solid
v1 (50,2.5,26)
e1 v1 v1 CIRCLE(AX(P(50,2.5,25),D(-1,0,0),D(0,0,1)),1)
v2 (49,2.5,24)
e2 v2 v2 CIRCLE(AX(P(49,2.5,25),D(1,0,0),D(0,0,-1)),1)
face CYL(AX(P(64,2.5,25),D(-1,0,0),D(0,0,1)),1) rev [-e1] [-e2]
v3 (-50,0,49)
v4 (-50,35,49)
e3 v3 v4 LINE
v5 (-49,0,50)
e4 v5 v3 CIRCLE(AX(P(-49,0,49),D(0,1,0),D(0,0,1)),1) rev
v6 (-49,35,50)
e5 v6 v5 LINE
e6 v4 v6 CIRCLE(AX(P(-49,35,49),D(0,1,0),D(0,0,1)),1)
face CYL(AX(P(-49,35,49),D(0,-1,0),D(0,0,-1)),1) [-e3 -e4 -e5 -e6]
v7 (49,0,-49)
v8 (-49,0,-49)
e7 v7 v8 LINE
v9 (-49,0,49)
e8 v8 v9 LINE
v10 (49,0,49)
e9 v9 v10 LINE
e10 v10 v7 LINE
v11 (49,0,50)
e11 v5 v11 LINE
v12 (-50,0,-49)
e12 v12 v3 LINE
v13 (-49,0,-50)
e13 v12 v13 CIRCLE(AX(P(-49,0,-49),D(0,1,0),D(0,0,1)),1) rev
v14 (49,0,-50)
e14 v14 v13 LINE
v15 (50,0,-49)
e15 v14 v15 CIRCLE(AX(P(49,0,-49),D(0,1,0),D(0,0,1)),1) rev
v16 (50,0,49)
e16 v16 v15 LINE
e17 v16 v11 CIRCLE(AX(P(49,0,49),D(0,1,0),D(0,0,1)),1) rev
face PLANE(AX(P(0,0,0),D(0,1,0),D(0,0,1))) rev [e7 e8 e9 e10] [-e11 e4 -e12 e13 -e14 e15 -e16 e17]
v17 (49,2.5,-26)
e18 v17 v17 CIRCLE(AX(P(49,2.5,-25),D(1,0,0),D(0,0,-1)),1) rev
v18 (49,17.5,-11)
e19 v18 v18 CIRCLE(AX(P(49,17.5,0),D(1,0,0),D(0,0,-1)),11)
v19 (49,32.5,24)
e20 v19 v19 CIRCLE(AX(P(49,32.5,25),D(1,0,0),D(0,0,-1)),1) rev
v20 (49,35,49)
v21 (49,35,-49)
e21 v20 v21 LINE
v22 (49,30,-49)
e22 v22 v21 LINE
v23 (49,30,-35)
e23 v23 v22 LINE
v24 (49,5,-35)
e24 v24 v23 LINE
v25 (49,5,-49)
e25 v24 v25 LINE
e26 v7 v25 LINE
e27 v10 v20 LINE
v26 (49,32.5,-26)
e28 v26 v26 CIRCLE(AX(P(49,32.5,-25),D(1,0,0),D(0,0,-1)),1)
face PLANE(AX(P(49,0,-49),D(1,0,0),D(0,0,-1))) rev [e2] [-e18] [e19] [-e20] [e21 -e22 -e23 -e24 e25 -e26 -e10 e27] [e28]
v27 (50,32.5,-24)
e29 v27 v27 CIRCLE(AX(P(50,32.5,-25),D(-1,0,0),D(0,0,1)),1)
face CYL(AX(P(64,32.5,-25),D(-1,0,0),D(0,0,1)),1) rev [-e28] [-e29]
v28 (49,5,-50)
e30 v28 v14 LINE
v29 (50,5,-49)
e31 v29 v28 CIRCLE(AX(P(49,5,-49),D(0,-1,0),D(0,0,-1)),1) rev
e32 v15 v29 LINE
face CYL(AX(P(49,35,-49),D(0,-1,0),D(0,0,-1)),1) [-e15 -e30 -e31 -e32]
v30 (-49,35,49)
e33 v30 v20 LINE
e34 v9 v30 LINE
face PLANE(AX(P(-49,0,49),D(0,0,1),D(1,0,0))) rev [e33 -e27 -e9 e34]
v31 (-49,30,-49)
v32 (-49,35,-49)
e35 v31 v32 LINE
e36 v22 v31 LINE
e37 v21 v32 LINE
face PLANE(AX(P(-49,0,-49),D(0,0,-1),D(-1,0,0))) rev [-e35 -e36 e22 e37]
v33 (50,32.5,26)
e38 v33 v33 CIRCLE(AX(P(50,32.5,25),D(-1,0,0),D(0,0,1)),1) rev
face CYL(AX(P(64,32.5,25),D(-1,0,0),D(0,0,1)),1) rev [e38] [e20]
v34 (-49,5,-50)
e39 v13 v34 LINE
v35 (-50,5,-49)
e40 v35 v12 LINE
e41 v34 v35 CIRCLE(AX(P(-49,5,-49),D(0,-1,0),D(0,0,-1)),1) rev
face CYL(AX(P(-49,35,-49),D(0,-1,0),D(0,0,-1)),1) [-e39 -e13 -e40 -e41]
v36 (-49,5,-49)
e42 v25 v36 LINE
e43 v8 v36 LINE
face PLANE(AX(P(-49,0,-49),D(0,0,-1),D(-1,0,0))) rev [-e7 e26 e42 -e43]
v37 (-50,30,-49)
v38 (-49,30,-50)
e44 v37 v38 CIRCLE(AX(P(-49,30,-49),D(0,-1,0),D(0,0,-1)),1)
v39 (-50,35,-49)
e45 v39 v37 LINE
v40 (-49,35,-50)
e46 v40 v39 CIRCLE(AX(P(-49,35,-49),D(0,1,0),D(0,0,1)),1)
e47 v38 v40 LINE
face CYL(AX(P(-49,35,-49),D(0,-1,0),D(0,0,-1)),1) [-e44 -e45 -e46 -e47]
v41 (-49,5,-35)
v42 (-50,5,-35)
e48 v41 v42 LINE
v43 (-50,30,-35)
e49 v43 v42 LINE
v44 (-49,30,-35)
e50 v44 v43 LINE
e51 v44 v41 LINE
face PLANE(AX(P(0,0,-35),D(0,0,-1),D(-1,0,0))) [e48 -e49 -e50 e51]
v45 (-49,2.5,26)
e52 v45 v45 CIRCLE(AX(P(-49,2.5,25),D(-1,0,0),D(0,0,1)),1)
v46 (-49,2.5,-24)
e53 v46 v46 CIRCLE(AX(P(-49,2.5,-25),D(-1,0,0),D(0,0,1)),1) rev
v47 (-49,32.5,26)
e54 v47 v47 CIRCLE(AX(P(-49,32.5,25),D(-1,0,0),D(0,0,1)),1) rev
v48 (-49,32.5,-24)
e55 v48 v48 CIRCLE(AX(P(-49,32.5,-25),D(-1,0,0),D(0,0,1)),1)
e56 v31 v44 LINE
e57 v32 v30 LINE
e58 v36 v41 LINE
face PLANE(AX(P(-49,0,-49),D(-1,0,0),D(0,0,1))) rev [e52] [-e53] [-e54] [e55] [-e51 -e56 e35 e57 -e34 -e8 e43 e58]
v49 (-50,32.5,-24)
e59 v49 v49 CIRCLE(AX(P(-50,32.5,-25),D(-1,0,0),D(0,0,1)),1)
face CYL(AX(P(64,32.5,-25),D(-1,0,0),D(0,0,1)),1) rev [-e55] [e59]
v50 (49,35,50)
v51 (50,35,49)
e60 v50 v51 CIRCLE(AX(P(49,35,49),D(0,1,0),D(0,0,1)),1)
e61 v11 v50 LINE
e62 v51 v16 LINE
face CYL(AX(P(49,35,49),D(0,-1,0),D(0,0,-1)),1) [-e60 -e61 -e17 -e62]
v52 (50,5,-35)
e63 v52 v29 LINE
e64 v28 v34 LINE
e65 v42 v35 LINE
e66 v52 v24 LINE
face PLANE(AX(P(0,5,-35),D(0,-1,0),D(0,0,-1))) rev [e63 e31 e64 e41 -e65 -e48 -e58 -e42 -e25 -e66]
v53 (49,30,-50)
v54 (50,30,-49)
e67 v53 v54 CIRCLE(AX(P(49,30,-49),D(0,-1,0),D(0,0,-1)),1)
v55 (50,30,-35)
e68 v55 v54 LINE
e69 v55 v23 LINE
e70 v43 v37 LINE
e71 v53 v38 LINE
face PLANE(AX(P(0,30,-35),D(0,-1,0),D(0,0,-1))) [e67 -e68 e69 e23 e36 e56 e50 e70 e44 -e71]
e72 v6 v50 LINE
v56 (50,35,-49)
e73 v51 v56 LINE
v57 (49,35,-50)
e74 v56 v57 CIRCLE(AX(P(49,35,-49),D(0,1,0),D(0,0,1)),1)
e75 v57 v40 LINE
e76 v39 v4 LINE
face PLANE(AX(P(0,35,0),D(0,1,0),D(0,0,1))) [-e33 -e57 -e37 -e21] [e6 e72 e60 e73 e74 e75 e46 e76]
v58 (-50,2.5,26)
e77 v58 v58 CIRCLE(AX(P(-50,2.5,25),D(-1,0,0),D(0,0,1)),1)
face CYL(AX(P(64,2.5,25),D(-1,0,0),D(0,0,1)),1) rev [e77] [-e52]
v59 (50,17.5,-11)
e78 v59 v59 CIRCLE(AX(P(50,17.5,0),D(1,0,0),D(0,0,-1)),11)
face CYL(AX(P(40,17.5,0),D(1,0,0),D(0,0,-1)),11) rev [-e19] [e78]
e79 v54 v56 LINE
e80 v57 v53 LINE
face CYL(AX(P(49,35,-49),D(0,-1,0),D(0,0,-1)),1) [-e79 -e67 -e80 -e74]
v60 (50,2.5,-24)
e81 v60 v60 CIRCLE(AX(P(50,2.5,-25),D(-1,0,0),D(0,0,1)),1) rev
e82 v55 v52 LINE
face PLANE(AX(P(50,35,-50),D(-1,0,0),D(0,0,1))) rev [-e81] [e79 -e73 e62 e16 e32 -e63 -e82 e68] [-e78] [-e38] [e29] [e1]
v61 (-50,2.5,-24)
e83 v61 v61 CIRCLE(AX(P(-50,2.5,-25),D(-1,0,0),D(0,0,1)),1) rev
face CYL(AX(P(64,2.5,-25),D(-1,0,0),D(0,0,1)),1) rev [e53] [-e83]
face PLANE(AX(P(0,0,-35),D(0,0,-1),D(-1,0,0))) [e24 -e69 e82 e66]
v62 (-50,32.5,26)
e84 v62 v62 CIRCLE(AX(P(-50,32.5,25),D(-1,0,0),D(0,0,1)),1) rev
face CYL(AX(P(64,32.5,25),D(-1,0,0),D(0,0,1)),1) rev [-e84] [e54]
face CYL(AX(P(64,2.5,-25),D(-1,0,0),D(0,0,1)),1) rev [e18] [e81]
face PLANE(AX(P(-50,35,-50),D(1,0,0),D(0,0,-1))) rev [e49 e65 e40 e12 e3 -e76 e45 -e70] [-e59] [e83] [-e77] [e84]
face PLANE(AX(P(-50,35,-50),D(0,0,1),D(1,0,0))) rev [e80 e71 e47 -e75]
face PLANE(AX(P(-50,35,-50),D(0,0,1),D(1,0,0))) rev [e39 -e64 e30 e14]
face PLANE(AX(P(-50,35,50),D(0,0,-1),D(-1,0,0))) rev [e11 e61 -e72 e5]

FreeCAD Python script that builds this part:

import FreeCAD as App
import Part
import Sketcher
from FreeCAD import Vector
Q = App.Units.Quantity


def edges_at(feature, points):
    """Names of the edges that pass closest to the given points."""
    edges = feature.Shape.Edges
    near = lambda p: min(range(len(edges)), key=lambda i: edges[i].distToShape(Part.Vertex(*p))[0])
    return sorted({f"Edge{near(p) + 1}" for p in points})


def add_polygon(sketch, points):
    """Adds a closed chain of lines whose ends are joined by coincident constraints."""
    first, n = sketch.GeometryCount, len(points)
    for a, b in zip(points, points[1:] + points[:1]):
        sketch.addGeometry(Part.LineSegment(App.Vector(*a, 0), App.Vector(*b, 0)), False)
    for i in range(n):
        sketch.addConstraint(Sketcher.Constraint("Coincident", first + i, 2, first + (i + 1) % n, 1))

doc = App.newDocument("Part")
body = doc.addObject("PartDesign::Body", "Body")

# Sketch on XZ plane
sketch1 = body.newObject("Sketcher::SketchObject", "Sketch")
sketch1.AttachmentSupport = (doc.getObject("XZ_Plane"), [""])
sketch1.MapMode = "FlatFace"
add_polygon(sketch1, [(-50, -50), (-50, 50), (50, 50), (50, -50)])  # lines 0-3
sketch1.addConstraint([
    Sketcher.Constraint("Vertical", 0),
    Sketcher.Constraint("Horizontal", 1),
    Sketcher.Constraint("Vertical", 2),
    Sketcher.Constraint("Horizontal", 3),
    Sketcher.Constraint("Symmetric", 0, 2, 2, 2, -1, 1),
    Sketcher.Constraint("Equal", 3, 0),
    Sketcher.Constraint("DistanceX", 1, 1, 1, 2, Q("100 mm")),
])
pad1 = body.newObject("PartDesign::Pad", "Pad")
pad1.Profile = sketch1
pad1.Length = 35
pad1.Reversed = True

# Sketch on XZ plane
sketch2 = body.newObject("Sketcher::SketchObject", "Sketch001")
sketch2.AttachmentSupport = (doc.getObject("XZ_Plane"), [""])
sketch2.MapMode = "FlatFace"
sketch2.AttachmentOffset = App.Placement(Vector(0, 0, -35), App.Rotation())
add_polygon(sketch2, [(-49, -49), (-49, 49), (49, 49), (49, -49)])  # lines 0-3
sketch2.addConstraint([
    Sketcher.Constraint("Vertical", 0),
    Sketcher.Constraint("Horizontal", 1),
    Sketcher.Constraint("Vertical", 2),
    Sketcher.Constraint("Horizontal", 3),
    Sketcher.Constraint("Symmetric", 0, 2, 2, 2, -1, 1),
    Sketcher.Constraint("Equal", 3, 0),
    Sketcher.Constraint("DistanceX", 1, 1, 1, 2, Q("98 mm")),
])
pocket1 = body.newObject("PartDesign::Pocket", "Pocket")
pocket1.Profile = sketch2
pocket1.Length = 35
pocket1.Reversed = True

# Sketch on XY plane
sketch3 = body.newObject("Sketcher::SketchObject", "Sketch002")
sketch3.AttachmentSupport = (doc.getObject("XY_Plane"), [""])
sketch3.MapMode = "FlatFace"
sketch3.AttachmentOffset = App.Placement(Vector(0, 0, -50), App.Rotation())
add_polygon(sketch3, [(50, 30), (50, 5), (-50, 5), (-50, 30)])  # lines 0-3
sketch3.addConstraint([
    Sketcher.Constraint("Vertical", 0),
    Sketcher.Constraint("Horizontal", 1),
    Sketcher.Constraint("Vertical", 2),
    Sketcher.Constraint("Horizontal", 3),
    Sketcher.Constraint("DistanceX", 1, 2, 1, 1, Q("100 mm")),
    Sketcher.Constraint("DistanceY", 0, 2, 0, 1, Q("25 mm")),
    Sketcher.Constraint("DistanceX", -1, 1, 0, 2, Q("50 mm")),
    Sketcher.Constraint("DistanceY", -1, 1, 0, 2, Q("5 mm")),
])
pocket2 = body.newObject("PartDesign::Pocket", "Pocket001")
pocket2.Profile = sketch3
pocket2.Length = 15
pocket2.Reversed = True

# Sketch on YZ plane
sketch4 = body.newObject("Sketcher::SketchObject", "Sketch003")
sketch4.AttachmentSupport = (doc.getObject("YZ_Plane"), [""])
sketch4.MapMode = "FlatFace"
sketch4.AttachmentOffset = App.Placement(Vector(0, 0, -50), App.Rotation())
sketch4.addGeometry([
    Part.Circle(Vector(32.5, -25, 0), Vector(0, 0, 1), 1),
    Part.Circle(Vector(32.5, 25, 0), Vector(0, 0, 1), 1),
    Part.Circle(Vector(2.5, -25, 0), Vector(0, 0, 1), 1),
    Part.Circle(Vector(2.5, 25, 0), Vector(0, 0, 1), 1),
], False)
sketch4.addConstraint([
    Sketcher.Constraint("Equal", 0, 1),
    Sketcher.Constraint("Equal", 1, 2),
    Sketcher.Constraint("Equal", 2, 3),
    Sketcher.Constraint("Symmetric", 0, 3, 1, 3, -1),
    Sketcher.Constraint("Symmetric", 2, 3, 3, 3, -1),
    Sketcher.Constraint("Horizontal", 0, 3, 2, 3),
    Sketcher.Constraint("Diameter", 0, Q("2 mm")),
    Sketcher.Constraint("DistanceY", 0, 3, -1, 1, Q("25 mm")),
    Sketcher.Constraint("DistanceX", 2, 3, 0, 3, Q("30 mm")),
    Sketcher.Constraint("DistanceX", -1, 1, 0, 3, Q("32.5 mm")),
])
pocket3 = body.newObject("PartDesign::Pocket", "Pocket002")
pocket3.Profile = sketch4
pocket3.Length = 114
pocket3.Reversed = True

# Sketch on YZ plane
sketch5 = body.newObject("Sketcher::SketchObject", "Sketch004")
sketch5.AttachmentSupport = (doc.getObject("YZ_Plane"), [""])
sketch5.MapMode = "FlatFace"
sketch5.AttachmentOffset = App.Placement(Vector(0, 0, 50), App.Rotation())
sketch5.addGeometry(Part.Circle(Vector(18, 0, 0), Vector(0, 0, 1), 11), False)
sketch5.addConstraint([
    Sketcher.Constraint("PointOnObject", 0, 3, -1),
    Sketcher.Constraint("Diameter", 0, Q("22 mm")),
    Sketcher.Constraint("DistanceX", -1, 1, 0, 3, Q("17.5 mm")),
])
pocket4 = body.newObject("PartDesign::Pocket", "Pocket003")
pocket4.Profile = sketch5
pocket4.Length = 10
doc.recompute()

fillet = body.newObject("PartDesign::Fillet", "Fillet")
fillet.Base = (pocket4, edges_at(pocket4, [
    (-50, 2.5, -50),
    (50, 2.5, -50),
    (50, 17.5, 50),
    (-50, 17.5, 50),
    (-50, 32.5, -50),
    (50, 32.5, -50),
]))
fillet.Radius = 1

doc.recompute()
